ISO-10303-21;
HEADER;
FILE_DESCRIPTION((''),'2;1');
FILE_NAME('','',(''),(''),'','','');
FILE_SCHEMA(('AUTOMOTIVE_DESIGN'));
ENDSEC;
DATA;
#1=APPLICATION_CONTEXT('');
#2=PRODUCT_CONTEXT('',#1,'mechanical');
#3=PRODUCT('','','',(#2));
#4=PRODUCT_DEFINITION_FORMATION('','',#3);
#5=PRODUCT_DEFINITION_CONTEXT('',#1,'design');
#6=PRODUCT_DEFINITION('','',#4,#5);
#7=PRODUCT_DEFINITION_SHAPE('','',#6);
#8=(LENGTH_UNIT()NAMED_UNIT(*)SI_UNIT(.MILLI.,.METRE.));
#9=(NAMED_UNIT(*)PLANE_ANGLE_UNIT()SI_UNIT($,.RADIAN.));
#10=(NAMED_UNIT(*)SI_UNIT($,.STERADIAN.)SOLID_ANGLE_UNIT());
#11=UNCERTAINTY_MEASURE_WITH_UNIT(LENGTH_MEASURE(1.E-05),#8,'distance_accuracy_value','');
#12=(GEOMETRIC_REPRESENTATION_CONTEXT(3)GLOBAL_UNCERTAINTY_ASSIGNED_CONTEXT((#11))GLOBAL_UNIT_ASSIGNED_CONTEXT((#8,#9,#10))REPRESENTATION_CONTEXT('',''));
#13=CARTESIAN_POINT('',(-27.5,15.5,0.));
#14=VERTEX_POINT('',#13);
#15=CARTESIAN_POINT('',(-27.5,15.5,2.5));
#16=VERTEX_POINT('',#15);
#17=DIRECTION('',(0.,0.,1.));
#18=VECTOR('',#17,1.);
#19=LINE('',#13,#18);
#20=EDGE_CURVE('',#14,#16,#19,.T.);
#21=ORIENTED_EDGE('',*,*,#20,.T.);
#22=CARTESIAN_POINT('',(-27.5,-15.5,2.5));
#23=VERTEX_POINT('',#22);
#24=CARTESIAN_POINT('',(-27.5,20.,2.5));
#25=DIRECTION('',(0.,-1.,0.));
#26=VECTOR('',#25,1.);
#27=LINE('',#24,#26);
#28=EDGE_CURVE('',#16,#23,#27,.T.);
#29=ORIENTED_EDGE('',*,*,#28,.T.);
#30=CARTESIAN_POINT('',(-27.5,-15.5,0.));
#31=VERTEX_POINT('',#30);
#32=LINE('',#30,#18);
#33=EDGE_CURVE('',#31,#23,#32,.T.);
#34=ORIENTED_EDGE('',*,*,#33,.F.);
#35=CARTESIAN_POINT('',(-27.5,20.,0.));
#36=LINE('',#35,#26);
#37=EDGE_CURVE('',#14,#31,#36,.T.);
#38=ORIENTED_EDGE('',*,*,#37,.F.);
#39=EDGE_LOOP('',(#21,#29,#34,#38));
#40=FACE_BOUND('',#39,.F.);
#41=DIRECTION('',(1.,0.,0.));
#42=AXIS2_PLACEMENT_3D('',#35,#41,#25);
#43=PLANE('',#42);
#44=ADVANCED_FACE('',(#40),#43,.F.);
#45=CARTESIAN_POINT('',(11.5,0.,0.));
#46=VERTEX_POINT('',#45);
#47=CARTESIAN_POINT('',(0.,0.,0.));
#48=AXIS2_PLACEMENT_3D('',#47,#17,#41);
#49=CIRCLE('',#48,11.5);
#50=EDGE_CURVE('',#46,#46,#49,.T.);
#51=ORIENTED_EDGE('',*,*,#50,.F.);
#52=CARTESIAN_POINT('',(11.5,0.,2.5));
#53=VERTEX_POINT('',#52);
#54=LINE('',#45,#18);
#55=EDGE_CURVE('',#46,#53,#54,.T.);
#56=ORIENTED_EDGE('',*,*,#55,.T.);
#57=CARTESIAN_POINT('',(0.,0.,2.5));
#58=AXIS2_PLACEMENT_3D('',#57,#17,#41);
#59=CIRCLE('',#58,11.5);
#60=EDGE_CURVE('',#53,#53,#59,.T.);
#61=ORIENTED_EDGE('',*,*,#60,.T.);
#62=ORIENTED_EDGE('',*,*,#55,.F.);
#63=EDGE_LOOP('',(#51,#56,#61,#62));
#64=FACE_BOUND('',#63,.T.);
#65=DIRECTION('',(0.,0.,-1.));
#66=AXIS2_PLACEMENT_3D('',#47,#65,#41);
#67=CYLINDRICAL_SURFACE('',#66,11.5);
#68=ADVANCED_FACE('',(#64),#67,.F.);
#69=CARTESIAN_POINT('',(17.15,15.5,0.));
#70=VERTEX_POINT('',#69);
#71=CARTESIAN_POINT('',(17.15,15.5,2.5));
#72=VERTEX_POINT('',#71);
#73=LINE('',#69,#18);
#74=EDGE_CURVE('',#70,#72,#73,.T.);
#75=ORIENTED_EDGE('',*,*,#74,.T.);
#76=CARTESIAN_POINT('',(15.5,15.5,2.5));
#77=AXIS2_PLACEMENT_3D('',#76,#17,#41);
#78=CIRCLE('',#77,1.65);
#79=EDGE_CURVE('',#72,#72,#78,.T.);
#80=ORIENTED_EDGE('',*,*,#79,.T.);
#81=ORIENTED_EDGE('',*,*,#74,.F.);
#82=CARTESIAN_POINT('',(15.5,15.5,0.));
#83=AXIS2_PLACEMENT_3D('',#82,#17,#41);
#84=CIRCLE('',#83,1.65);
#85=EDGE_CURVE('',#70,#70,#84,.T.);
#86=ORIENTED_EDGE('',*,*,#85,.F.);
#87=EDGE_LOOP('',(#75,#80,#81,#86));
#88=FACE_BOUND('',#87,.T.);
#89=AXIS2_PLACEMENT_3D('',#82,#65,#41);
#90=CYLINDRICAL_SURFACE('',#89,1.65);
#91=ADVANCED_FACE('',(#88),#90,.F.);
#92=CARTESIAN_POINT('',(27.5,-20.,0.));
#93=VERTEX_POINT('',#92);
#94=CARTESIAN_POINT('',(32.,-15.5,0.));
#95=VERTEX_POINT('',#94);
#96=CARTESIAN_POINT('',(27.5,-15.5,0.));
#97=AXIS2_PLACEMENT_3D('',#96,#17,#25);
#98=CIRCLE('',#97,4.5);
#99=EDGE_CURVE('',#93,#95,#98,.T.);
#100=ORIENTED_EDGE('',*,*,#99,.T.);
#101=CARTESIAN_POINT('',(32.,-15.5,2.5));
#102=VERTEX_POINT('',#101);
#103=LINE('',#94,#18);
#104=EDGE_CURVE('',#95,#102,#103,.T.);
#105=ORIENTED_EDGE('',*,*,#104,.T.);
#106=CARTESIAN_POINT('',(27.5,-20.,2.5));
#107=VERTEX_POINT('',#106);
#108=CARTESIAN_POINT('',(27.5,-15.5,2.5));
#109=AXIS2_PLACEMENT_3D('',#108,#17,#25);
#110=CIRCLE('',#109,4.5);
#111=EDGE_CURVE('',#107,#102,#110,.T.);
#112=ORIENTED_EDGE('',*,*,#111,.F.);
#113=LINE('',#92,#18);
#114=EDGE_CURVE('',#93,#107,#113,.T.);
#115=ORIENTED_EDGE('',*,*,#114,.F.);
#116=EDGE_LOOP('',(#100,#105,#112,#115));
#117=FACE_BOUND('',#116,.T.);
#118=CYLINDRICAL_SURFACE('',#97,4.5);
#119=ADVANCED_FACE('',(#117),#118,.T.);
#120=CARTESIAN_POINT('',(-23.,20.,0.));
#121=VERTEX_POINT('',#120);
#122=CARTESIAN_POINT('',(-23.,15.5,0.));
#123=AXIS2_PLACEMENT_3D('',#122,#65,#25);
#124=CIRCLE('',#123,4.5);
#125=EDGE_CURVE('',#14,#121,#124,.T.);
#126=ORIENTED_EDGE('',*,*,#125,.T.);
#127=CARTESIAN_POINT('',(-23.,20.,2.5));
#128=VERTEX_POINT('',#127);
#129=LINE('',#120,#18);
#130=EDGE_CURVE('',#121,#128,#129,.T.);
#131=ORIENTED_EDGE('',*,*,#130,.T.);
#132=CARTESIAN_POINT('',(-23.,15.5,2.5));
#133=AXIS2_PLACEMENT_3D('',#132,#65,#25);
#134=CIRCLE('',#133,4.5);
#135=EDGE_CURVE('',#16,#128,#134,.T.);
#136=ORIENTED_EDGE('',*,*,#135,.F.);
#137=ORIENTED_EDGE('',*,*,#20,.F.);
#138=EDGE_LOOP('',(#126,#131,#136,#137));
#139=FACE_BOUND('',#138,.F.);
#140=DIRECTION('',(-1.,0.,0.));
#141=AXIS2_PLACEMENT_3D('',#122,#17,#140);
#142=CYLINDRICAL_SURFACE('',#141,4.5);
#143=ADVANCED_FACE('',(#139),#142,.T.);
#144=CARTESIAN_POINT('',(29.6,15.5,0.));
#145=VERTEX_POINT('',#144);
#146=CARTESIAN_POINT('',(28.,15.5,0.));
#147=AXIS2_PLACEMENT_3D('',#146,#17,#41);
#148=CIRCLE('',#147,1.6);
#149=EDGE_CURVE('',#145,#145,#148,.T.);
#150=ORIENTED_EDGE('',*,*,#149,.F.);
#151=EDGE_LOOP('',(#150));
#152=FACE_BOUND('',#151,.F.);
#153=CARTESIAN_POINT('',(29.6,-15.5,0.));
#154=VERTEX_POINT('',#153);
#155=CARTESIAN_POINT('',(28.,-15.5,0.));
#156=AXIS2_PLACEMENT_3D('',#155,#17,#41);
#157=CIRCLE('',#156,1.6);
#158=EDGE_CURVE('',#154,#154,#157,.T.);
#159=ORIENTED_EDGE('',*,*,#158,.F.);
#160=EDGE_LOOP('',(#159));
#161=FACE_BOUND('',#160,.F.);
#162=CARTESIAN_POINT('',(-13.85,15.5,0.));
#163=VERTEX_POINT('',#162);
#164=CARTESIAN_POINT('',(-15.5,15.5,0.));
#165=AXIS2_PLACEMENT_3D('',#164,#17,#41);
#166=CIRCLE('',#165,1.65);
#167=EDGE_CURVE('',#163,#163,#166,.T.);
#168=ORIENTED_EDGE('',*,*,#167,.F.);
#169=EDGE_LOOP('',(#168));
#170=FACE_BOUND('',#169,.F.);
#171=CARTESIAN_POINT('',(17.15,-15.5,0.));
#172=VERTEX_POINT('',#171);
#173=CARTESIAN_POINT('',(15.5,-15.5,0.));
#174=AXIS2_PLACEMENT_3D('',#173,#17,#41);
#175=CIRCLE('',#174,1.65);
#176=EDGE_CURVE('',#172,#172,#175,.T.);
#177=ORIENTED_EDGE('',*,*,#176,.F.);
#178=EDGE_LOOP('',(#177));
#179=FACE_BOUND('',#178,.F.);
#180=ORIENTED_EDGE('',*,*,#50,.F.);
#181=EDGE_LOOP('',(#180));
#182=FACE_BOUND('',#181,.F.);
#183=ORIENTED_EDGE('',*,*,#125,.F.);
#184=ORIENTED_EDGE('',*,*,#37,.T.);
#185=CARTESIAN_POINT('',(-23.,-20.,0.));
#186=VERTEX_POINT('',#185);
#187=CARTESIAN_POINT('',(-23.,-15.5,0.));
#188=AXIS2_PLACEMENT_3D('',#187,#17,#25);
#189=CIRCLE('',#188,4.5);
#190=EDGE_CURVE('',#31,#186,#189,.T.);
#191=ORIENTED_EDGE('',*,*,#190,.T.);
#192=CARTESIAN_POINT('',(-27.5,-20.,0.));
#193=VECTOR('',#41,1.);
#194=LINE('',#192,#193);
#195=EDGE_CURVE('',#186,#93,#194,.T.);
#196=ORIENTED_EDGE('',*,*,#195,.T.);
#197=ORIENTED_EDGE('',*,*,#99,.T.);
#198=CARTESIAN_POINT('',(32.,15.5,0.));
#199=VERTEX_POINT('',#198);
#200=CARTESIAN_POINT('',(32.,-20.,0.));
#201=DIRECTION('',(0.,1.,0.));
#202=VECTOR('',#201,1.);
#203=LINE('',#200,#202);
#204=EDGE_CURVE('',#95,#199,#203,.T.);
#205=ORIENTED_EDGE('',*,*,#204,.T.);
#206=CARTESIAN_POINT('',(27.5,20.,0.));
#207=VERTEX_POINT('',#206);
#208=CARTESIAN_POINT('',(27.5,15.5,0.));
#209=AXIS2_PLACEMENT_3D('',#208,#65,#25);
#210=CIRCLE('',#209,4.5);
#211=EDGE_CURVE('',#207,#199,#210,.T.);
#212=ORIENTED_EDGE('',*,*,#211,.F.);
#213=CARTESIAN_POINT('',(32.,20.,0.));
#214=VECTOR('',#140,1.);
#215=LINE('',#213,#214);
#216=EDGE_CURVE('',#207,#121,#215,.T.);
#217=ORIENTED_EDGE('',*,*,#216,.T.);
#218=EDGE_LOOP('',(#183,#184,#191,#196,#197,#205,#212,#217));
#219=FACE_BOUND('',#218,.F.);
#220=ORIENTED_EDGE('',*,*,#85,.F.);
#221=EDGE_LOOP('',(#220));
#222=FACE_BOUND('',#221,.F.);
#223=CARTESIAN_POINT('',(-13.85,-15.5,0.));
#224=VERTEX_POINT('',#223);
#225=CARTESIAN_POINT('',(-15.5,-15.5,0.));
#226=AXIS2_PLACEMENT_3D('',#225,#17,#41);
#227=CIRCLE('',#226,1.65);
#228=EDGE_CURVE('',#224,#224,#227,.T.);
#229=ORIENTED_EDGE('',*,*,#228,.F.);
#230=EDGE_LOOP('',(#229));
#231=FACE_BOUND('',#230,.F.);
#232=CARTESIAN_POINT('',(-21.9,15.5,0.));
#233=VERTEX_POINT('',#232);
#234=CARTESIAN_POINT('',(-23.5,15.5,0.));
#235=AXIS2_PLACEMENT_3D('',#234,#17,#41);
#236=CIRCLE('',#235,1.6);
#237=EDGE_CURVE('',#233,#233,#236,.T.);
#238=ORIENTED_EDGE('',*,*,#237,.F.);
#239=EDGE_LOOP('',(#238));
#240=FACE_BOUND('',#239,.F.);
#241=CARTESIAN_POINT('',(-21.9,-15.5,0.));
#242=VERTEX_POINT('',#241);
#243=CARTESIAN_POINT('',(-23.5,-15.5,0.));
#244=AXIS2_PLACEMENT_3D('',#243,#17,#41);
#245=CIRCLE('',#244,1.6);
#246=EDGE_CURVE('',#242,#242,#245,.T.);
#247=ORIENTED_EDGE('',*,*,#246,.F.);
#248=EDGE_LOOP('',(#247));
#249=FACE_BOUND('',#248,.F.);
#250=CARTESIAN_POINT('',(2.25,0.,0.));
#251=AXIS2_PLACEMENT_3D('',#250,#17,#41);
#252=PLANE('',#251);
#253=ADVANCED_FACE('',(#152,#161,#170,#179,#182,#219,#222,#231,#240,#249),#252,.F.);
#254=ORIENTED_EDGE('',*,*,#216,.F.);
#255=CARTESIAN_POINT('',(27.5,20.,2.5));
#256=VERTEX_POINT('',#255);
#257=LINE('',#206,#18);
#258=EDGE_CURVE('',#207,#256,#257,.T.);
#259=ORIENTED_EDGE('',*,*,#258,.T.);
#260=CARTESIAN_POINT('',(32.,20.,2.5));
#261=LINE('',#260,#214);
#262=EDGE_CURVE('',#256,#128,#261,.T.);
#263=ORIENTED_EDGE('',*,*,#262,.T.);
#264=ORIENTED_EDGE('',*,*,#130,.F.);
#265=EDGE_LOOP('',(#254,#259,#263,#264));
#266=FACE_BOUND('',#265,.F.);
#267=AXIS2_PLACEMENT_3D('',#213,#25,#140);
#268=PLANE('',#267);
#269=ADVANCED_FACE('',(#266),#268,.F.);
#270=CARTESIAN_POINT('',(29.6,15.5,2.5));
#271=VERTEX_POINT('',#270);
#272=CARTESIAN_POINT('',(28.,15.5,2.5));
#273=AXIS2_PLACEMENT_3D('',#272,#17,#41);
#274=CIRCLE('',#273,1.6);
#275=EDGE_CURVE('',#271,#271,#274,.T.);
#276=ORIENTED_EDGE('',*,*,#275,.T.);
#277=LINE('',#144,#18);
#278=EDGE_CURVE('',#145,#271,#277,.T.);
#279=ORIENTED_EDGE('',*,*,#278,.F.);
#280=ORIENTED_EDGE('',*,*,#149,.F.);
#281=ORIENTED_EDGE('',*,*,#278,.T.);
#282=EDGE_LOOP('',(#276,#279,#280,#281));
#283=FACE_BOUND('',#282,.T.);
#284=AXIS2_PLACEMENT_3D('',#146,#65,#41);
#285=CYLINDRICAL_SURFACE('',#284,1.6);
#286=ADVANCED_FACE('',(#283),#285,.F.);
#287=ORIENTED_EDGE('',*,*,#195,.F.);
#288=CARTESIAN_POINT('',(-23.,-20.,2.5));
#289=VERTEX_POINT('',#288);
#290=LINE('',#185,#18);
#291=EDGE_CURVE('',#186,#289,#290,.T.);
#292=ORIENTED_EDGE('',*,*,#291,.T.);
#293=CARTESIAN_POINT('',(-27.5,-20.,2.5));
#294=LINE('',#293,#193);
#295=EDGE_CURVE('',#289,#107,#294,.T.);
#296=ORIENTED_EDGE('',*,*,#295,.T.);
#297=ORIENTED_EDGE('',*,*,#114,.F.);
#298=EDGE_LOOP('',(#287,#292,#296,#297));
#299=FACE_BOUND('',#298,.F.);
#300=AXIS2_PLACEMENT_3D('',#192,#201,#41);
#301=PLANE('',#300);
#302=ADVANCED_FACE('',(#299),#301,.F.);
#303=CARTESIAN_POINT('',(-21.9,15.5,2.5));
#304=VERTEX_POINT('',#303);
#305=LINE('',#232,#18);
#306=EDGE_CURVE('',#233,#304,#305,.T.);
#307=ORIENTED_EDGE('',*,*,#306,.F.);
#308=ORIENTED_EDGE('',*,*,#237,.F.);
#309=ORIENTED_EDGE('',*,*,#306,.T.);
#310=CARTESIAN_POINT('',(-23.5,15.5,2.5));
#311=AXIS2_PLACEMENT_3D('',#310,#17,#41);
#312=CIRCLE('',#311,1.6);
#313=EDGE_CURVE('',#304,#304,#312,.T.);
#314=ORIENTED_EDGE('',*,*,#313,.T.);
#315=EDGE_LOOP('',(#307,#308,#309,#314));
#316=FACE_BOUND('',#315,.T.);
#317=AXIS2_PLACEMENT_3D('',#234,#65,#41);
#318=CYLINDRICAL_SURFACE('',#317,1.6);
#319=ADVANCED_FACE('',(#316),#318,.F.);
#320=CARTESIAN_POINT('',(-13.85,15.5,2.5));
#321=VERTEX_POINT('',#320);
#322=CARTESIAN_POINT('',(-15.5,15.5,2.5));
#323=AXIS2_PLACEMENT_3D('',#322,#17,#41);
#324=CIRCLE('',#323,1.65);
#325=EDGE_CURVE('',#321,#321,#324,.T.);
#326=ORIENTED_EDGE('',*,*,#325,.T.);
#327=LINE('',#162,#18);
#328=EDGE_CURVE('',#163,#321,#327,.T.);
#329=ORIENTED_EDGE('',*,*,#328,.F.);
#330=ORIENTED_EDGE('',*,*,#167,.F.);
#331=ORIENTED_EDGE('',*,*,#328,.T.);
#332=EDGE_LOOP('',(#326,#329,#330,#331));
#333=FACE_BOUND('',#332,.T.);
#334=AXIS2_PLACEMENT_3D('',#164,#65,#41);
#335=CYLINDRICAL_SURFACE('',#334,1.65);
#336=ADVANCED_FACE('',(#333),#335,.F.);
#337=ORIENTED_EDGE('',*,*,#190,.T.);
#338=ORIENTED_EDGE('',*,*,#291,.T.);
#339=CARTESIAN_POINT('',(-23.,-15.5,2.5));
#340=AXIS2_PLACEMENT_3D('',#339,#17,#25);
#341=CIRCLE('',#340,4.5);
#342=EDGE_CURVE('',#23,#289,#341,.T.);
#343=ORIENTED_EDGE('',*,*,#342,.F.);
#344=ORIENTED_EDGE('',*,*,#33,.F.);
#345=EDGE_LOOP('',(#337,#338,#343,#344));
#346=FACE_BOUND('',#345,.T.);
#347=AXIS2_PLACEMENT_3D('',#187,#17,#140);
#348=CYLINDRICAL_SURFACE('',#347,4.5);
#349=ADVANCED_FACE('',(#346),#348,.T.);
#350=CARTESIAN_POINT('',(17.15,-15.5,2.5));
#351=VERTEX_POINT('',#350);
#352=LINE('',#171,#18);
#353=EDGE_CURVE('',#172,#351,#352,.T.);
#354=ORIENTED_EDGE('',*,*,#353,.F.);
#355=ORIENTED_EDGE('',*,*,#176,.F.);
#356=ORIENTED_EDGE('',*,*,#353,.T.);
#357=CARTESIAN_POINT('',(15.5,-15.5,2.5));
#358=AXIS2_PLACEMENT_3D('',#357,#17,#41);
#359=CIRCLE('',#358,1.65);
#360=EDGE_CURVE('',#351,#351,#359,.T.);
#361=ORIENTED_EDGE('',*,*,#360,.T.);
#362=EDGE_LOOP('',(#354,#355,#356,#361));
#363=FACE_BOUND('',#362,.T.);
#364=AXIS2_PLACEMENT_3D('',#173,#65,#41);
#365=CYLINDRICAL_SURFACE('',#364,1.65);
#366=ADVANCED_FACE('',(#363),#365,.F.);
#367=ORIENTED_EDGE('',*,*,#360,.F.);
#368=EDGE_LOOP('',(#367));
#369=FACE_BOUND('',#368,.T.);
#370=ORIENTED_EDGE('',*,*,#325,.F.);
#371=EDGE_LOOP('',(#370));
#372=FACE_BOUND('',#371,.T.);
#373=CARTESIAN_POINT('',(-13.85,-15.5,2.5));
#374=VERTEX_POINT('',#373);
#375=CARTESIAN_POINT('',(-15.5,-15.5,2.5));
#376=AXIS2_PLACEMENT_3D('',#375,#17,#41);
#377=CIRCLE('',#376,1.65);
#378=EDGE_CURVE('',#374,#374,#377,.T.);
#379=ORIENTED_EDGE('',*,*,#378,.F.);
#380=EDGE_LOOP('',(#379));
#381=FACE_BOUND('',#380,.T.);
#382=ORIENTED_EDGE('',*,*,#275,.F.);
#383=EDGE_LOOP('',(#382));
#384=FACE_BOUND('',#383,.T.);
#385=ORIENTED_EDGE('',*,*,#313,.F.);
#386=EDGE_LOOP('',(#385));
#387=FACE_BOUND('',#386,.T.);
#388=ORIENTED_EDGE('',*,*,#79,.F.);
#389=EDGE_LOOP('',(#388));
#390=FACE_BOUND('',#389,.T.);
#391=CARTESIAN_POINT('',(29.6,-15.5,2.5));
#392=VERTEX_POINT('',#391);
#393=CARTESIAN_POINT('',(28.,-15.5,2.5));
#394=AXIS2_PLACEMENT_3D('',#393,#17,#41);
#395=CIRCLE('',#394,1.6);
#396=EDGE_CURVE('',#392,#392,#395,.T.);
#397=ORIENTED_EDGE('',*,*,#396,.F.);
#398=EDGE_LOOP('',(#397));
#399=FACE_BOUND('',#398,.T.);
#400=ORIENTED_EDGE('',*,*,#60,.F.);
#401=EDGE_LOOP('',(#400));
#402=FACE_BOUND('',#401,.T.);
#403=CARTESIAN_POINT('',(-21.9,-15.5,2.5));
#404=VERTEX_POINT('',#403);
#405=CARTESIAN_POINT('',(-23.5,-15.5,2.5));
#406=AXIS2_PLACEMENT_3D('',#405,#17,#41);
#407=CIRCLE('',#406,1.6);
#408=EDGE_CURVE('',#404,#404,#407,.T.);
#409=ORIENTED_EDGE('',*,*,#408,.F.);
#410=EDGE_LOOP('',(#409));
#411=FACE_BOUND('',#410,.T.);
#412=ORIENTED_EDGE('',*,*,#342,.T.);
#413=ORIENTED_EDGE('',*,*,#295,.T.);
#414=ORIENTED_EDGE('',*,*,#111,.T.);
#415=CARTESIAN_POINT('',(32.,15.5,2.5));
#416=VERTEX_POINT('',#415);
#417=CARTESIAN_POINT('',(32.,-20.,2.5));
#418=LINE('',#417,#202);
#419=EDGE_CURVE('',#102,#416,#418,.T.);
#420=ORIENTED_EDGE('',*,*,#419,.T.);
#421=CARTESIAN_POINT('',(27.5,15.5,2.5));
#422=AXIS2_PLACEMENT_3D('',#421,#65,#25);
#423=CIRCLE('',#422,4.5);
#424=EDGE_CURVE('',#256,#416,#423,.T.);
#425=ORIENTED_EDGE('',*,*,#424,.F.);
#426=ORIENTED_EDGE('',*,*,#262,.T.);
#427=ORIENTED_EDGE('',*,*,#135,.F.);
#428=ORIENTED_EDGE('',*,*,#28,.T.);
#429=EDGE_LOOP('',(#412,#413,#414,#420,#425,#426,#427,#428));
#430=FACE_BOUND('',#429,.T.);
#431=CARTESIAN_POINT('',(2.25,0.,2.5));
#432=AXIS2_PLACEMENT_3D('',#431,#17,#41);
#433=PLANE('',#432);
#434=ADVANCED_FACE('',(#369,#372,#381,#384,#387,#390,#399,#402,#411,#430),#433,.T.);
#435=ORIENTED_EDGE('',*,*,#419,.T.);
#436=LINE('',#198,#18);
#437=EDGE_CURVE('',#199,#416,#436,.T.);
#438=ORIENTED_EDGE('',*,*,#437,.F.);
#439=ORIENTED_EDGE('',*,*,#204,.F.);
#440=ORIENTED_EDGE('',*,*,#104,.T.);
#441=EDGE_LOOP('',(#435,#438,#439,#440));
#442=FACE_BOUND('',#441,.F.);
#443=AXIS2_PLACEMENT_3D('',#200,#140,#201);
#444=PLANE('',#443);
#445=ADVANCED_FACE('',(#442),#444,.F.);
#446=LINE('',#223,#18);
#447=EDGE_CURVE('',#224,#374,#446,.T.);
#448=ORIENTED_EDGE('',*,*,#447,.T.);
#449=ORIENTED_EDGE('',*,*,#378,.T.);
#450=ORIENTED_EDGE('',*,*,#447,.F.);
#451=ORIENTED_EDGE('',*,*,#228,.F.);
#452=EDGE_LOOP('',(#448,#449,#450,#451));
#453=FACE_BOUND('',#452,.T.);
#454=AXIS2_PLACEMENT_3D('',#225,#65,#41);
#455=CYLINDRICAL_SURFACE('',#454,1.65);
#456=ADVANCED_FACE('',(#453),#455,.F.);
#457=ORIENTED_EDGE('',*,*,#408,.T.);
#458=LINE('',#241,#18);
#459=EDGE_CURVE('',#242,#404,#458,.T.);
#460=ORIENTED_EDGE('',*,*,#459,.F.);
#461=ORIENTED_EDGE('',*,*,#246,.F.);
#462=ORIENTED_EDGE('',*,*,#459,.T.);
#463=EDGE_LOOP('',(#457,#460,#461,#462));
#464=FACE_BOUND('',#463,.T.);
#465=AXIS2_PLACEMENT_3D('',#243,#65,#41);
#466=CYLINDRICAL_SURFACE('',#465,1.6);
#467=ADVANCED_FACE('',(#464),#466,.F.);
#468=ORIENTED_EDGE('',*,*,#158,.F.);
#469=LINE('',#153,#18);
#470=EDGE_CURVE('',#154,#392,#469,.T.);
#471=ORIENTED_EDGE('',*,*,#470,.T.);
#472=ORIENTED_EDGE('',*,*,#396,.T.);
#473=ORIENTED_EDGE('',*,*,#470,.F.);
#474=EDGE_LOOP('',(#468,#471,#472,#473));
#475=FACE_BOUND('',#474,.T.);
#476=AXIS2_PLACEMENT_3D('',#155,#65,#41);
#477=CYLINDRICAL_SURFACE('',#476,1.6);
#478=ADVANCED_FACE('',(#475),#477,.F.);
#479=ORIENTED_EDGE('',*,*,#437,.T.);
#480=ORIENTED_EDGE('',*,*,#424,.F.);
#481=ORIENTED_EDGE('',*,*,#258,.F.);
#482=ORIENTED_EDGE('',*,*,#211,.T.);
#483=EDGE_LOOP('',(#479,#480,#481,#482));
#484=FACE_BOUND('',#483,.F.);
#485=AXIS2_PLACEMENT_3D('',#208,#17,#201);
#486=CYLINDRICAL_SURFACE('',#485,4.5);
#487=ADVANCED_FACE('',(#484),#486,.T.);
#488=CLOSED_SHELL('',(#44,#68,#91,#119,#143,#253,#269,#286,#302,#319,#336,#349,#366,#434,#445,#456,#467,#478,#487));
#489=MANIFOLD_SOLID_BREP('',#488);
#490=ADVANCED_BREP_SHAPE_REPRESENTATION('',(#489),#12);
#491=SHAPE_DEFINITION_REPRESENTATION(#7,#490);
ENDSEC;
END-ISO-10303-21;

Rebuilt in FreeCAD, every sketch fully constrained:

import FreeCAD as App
import Part
import Sketcher
Q = App.Units.Quantity


def edges_at(feature, points):
    """Names of the edges that pass closest to the given points."""
    edges = feature.Shape.Edges
    near = lambda p: min(range(len(edges)), key=lambda i: edges[i].distToShape(Part.Vertex(*p))[0])
    return sorted({f"Edge{near(p) + 1}" for p in points})


def add_polygon(sketch, points):
    """Adds a closed chain of lines whose ends are joined by coincident constraints."""
    first, n = sketch.GeometryCount, len(points)
    for a, b in zip(points, points[1:] + points[:1]):
        sketch.addGeometry(Part.LineSegment(App.Vector(*a, 0), App.Vector(*b, 0)), False)
    for i in range(n):
        sketch.addConstraint(Sketcher.Constraint("Coincident", first + i, 2, first + (i + 1) % n, 1))

doc = App.newDocument("Part")
body = doc.addObject("PartDesign::Body", "Body")

# Sketch on XY plane
sketch1 = body.newObject("Sketcher::SketchObject", "Sketch")
sketch1.AttachmentSupport = (doc.getObject("XY_Plane"), [""])
sketch1.MapMode = "FlatFace"
add_polygon(sketch1, [(-27.5, 20), (-27.5, -20), (32, -20), (32, 20)])  # lines 0-3
sketch1.addGeometry(Part.Circle(App.Vector(-23.5, -15.5, 0), App.Vector(0, 0, 1), 1.6), False)  # 4
sketch1.addGeometry(Part.Circle(App.Vector(-15.5, -15.5, 0), App.Vector(0, 0, 1), 1.6), False)  # 5
sketch1.addGeometry(Part.Circle(App.Vector(15.5, -15.5, 0), App.Vector(0, 0, 1), 1.6), False)  # 6
sketch1.addGeometry(Part.Circle(App.Vector(28, -15.5, 0), App.Vector(0, 0, 1), 1.6), False)  # 7
sketch1.addGeometry(Part.Circle(App.Vector(0, 0, 0), App.Vector(0, 0, 1), 11.5), False)  # 8
sketch1.addGeometry(Part.Circle(App.Vector(-23.5, 15.5, 0), App.Vector(0, 0, 1), 1.6), False)  # 9
sketch1.addGeometry(Part.Circle(App.Vector(-15.5, 15.5, 0), App.Vector(0, 0, 1), 1.6), False)  # 10
sketch1.addGeometry(Part.Circle(App.Vector(15.5, 15.5, 0), App.Vector(0, 0, 1), 1.6), False)  # 11
sketch1.addGeometry(Part.Circle(App.Vector(28, 15.5, 0), App.Vector(0, 0, 1), 1.6), False)  # 12
sketch1.addConstraint([
    Sketcher.Constraint("Vertical", 0),
    Sketcher.Constraint("Horizontal", 1),
    Sketcher.Constraint("Vertical", 2),
    Sketcher.Constraint("Horizontal", 3),
    Sketcher.Constraint("Coincident", 8, 3, -1, 1),
    Sketcher.Constraint("Equal", 5, 6),
    Sketcher.Constraint("Equal", 4, 7),
    Sketcher.Constraint("Equal", 7, 9),
    Sketcher.Constraint("Equal", 6, 10),
    Sketcher.Constraint("Equal", 10, 11),
    Sketcher.Constraint("Equal", 9, 12),
    Sketcher.Constraint("Symmetric", 6, 3, 10, 3, -1, 1),
    Sketcher.Constraint("Symmetric", 5, 3, 11, 3, -1, 1),
    Sketcher.Constraint("Symmetric", 5, 3, 6, 3, -2),
    Sketcher.Constraint("Symmetric", 4, 3, 9, 3, -1),
    Sketcher.Constraint("Symmetric", 7, 3, 12, 3, -1),
    Sketcher.Constraint("Horizontal", 4, 3, 5, 3),
    Sketcher.Constraint("Horizontal", 6, 3, 7, 3),
    Sketcher.Constraint("Diameter", 8, Q("23 mm")),
    Sketcher.Constraint("Diameter", 4, Q("3.2 mm")),
    Sketcher.Constraint("Diameter", 5, Q("3.3 mm")),
    Sketcher.Constraint("DistanceY", 0, 2, 0, 1, Q("40 mm")),
    Sketcher.Constraint("DistanceX", 1, 1, 1, 2, Q("59.5 mm")),
    Sketcher.Constraint("DistanceX", -1, 1, 7, 3, Q("28 mm")),
    Sketcher.Constraint("DistanceY", 0, 2, -1, 1, Q("20 mm")),
    Sketcher.Constraint("DistanceX", -1, 1, 1, 2, Q("32 mm")),
    Sketcher.Constraint("DistanceX", 4, 3, 5, 3, Q("8 mm")),
    Sketcher.Constraint("DistanceX", 5, 3, 6, 3, Q("31 mm")),
    Sketcher.Constraint("DistanceY", 4, 3, 9, 3, Q("31 mm")),
])
pad1 = body.newObject("PartDesign::Pad", "Pad")
pad1.Profile = sketch1
pad1.Length = 2.5
doc.recompute()

fillet = body.newObject("PartDesign::Fillet", "Fillet")
fillet.Base = (pad1, edges_at(pad1, [
    (32, -20, 1.25),
    (32, 20, 1.25),
    (-27.5, 20, 1.25),
    (-27.5, -20, 1.25),
]))
fillet.Radius = 4.5

doc.recompute()
